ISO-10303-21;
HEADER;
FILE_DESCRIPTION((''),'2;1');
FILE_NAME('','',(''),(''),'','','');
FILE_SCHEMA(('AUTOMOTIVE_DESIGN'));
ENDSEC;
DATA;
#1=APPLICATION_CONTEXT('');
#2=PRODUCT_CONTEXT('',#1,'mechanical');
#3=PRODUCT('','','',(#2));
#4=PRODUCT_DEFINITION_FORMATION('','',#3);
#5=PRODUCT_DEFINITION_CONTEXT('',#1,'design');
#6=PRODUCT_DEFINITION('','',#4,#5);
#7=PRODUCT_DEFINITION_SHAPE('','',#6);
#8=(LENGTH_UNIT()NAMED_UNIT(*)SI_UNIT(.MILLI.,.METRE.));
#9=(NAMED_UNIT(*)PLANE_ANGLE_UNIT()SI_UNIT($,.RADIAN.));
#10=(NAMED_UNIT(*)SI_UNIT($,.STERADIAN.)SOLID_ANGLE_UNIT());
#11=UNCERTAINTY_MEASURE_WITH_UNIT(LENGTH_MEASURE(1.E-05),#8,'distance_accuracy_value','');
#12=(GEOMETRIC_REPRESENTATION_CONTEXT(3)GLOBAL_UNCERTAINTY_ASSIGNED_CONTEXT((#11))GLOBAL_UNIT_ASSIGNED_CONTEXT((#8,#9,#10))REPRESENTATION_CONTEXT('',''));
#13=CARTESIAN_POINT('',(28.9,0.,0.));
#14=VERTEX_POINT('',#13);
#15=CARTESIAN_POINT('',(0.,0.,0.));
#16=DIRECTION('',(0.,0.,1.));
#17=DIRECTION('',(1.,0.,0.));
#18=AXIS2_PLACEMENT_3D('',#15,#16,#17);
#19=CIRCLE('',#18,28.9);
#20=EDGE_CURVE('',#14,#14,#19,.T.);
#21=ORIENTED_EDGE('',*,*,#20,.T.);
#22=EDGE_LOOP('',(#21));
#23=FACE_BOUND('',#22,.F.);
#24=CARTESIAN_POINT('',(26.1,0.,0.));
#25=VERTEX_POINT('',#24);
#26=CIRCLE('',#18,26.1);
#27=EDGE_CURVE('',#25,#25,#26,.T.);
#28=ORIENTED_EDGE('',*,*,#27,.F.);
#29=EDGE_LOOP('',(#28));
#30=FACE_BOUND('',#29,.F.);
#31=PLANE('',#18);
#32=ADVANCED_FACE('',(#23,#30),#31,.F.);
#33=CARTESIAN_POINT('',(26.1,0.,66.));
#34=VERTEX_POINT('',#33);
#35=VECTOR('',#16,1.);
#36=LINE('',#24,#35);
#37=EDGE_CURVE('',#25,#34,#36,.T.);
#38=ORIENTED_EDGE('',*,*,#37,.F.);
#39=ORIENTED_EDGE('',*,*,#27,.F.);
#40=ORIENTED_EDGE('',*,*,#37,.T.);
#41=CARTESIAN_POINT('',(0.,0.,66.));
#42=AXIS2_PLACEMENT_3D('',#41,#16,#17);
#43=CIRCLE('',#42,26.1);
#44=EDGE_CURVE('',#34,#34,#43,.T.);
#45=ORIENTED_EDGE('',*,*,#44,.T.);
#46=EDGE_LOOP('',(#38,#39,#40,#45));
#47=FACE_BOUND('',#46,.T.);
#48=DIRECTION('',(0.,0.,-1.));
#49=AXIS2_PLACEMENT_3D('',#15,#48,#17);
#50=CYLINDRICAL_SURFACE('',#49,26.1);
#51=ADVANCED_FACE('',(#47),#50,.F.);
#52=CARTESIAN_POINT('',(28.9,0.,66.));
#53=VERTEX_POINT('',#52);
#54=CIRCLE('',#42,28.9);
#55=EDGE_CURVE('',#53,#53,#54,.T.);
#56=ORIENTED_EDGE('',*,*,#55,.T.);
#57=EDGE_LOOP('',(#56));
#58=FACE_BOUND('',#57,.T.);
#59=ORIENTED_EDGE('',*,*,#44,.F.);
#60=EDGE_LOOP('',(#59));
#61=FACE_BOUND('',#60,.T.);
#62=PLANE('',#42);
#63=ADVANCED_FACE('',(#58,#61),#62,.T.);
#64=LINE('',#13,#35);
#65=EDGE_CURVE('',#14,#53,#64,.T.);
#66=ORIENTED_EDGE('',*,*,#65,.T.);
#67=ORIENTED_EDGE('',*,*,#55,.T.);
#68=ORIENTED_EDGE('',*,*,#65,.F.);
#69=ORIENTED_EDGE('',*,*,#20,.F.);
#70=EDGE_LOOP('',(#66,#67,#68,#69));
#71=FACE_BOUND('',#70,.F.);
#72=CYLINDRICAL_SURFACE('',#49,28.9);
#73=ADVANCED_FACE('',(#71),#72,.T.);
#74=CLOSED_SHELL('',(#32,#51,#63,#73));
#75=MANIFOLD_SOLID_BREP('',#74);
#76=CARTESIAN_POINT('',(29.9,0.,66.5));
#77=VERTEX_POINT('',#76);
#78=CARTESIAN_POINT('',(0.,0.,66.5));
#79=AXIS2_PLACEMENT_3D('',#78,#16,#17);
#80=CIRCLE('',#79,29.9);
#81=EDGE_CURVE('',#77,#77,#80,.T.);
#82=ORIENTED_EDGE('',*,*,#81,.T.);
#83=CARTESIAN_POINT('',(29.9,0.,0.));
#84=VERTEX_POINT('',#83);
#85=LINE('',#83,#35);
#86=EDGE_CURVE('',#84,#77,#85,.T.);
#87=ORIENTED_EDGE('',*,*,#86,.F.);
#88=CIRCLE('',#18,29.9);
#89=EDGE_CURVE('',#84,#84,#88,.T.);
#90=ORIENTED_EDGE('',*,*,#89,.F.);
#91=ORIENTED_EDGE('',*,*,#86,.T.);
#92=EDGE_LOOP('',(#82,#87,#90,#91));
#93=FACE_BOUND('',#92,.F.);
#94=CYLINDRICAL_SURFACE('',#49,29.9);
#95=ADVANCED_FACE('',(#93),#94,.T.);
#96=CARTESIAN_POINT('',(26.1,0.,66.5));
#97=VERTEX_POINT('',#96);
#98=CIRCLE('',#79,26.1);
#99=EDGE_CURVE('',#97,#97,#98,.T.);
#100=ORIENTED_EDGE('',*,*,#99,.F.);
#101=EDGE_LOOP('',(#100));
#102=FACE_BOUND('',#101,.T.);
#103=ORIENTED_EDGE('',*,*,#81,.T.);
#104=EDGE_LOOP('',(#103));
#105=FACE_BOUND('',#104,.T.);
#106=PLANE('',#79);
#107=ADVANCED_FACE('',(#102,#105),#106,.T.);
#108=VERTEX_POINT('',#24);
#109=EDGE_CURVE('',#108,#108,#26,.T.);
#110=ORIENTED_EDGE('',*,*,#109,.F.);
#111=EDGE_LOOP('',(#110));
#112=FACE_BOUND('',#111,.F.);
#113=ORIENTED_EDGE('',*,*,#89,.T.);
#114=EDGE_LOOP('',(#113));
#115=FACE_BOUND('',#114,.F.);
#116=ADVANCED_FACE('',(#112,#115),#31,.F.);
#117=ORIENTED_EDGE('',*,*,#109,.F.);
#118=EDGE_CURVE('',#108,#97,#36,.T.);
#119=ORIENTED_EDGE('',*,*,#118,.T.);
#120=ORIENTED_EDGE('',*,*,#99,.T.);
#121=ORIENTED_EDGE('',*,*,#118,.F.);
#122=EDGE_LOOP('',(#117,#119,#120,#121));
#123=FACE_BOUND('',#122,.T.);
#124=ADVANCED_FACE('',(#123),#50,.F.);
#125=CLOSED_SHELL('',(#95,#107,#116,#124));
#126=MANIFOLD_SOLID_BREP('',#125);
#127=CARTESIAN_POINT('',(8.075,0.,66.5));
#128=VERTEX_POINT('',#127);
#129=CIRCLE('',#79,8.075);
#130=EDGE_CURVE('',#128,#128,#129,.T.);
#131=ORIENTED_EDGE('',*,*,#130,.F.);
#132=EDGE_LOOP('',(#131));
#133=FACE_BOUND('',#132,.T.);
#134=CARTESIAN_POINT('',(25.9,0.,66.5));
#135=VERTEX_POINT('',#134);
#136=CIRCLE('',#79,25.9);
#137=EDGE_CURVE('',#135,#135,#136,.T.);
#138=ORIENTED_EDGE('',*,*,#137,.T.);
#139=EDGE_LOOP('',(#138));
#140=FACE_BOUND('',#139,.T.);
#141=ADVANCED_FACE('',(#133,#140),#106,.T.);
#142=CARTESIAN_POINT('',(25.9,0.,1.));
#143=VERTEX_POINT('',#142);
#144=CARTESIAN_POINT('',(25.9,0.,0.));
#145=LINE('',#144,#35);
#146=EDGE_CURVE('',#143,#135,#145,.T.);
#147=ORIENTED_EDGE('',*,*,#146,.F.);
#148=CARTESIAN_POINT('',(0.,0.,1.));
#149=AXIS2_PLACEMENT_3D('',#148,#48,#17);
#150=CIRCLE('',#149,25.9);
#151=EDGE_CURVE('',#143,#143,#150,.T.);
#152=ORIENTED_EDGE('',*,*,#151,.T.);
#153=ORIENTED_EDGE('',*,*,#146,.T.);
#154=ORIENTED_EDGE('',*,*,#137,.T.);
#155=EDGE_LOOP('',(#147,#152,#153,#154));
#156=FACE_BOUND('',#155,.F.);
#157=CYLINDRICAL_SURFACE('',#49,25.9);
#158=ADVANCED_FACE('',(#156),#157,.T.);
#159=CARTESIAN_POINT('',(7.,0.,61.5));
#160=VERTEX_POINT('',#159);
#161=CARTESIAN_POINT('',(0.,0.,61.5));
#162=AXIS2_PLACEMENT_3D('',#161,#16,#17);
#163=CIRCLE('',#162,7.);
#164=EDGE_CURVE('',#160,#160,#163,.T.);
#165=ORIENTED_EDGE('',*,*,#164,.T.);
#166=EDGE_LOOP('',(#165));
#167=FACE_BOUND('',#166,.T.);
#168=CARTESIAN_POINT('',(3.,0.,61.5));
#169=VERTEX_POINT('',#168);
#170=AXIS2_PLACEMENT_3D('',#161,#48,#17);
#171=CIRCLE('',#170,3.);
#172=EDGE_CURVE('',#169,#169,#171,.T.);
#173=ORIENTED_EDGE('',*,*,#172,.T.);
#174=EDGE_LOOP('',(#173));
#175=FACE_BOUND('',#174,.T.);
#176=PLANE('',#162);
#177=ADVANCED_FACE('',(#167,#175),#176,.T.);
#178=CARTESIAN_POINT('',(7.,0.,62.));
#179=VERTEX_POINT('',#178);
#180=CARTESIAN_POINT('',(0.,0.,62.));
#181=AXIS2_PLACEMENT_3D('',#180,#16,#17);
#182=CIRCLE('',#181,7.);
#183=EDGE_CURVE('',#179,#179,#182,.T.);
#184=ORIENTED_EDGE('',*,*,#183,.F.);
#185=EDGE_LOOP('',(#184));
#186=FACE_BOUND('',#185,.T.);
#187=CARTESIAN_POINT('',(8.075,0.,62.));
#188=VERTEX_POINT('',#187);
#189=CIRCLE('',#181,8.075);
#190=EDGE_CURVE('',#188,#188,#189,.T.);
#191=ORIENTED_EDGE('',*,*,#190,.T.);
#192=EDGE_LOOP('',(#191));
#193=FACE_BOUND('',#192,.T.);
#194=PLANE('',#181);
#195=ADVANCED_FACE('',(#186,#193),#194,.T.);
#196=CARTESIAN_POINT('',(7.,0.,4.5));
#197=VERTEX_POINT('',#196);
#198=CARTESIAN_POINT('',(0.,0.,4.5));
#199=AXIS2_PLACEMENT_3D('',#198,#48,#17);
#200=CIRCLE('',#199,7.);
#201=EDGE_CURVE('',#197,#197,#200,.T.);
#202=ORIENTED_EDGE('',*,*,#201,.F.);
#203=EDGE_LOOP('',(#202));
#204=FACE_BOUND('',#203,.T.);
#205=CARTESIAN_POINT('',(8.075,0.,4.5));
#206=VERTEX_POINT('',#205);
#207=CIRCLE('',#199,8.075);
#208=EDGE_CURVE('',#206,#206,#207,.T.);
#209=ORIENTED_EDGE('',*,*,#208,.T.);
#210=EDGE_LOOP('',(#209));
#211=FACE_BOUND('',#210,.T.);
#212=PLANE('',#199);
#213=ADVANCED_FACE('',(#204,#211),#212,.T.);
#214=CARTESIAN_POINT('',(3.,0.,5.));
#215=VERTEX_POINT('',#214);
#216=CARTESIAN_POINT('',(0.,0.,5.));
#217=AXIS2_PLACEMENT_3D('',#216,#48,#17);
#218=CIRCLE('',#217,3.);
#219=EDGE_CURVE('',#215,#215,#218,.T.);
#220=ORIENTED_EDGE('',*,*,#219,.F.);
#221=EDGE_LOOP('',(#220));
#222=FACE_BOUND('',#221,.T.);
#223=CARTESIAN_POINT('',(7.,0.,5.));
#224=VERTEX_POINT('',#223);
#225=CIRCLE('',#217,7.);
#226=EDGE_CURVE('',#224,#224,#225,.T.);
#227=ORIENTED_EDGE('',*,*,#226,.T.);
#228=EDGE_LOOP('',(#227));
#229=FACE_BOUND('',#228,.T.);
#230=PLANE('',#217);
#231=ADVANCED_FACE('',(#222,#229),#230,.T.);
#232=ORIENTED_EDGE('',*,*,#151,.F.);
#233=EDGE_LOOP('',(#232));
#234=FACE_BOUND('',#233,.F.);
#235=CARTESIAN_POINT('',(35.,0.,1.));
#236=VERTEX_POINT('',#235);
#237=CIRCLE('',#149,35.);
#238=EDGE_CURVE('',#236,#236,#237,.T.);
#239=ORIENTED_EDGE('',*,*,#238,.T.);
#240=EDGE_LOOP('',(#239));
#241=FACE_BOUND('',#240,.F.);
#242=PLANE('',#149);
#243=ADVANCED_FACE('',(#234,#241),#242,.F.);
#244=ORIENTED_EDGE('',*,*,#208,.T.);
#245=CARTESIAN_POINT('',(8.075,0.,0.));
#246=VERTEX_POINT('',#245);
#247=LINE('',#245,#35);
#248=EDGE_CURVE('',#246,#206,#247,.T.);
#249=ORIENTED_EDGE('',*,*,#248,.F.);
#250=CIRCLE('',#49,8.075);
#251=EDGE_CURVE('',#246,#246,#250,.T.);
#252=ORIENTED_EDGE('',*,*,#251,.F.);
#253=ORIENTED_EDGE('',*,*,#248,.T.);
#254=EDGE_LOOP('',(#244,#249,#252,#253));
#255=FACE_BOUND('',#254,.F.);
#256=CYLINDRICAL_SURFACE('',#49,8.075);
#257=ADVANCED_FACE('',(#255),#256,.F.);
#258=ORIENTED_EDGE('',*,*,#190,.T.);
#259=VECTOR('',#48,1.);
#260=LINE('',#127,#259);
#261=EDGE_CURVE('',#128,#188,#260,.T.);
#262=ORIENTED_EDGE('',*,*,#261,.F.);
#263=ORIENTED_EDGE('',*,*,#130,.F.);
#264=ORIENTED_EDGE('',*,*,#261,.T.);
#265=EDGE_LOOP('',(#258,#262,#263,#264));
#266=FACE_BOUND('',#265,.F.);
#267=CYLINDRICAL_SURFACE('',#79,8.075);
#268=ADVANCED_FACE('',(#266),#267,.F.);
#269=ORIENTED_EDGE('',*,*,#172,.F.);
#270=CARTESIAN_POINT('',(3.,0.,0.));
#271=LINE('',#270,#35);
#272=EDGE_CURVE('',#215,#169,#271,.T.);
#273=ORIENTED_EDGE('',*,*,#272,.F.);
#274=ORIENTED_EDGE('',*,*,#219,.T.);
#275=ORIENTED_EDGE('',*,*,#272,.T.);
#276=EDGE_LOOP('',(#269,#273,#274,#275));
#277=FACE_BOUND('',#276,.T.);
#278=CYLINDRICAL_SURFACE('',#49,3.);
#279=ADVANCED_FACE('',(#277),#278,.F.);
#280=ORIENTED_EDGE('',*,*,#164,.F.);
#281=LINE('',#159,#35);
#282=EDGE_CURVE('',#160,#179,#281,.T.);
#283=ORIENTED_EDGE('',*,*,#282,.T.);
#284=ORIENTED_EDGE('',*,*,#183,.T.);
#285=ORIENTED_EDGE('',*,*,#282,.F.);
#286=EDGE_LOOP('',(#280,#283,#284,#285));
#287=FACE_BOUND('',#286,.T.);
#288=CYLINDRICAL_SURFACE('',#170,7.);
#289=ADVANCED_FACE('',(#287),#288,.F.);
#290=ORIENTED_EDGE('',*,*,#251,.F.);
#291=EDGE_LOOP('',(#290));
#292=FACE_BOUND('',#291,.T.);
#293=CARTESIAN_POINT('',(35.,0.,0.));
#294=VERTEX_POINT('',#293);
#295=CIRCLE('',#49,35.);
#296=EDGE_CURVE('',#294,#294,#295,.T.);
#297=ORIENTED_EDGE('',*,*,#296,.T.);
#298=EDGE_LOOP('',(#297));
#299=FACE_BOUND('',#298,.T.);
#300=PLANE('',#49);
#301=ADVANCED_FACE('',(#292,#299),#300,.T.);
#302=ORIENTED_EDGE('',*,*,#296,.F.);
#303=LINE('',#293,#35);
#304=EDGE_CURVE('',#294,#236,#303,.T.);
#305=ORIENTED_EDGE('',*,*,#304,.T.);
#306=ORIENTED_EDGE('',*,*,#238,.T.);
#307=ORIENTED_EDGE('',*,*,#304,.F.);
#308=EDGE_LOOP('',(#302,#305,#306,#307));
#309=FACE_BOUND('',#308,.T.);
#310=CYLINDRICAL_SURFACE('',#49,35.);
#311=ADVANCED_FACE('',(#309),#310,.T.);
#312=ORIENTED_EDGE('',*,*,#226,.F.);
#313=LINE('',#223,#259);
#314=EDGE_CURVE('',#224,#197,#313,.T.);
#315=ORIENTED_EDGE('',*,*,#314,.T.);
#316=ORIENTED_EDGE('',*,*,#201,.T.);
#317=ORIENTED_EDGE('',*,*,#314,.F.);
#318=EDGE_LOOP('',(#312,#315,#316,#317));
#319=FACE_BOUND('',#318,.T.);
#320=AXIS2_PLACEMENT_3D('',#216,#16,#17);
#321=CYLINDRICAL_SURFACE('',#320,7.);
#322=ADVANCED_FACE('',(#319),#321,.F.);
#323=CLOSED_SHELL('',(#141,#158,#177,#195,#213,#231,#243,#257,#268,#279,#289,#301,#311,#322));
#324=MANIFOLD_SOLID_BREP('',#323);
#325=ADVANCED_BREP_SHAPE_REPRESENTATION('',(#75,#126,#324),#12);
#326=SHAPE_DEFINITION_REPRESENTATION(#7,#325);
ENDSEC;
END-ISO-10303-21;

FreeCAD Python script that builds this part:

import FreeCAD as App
import Part
import Sketcher
from FreeCAD import Vector
Q = App.Units.Quantity

doc = App.newDocument("Part")
body = doc.addObject("PartDesign::Body", "Body")

sketch1 = doc.addObject("Sketcher::SketchObject", "Sketch")
body.addObject(sketch1)
sketch1.AttachmentSupport = (doc.XY_Plane, [""])
sketch1.MapMode = "FlatFace"
sketch1.addGeometry([
    Part.Circle(Vector(0, 0, 0), Vector(0, 0, 1), 25.9),
    Part.Circle(Vector(0, 0, 0), Vector(0, 0, 1), 3),
], False)
sketch1.addConstraint([
    Sketcher.Constraint("Coincident", 0, 3, -1, 1),
    Sketcher.Constraint("Coincident", 1, 3, -1, 1),
    Sketcher.Constraint("Diameter", 1, Q("6 mm")),
    Sketcher.Constraint("Diameter", 0, Q("51.8 mm")),
])
pad1 = doc.addObject("PartDesign::Pad", "Pad")
body.addObject(pad1)
pad1.Profile = sketch1
pad1.Length = 66.5

sketch2 = doc.addObject("Sketcher::SketchObject", "Sketch001")
body.addObject(sketch2)
sketch2.AttachmentSupport = (doc.XY_Plane, [""])
sketch2.MapMode = "FlatFace"
sketch2.addGeometry([
    Part.Circle(Vector(0, 0, 0), Vector(0, 0, 1), 35),
    Part.Circle(Vector(0, 0, 0), Vector(0, 0, 1), 3),
], False)
sketch2.addConstraint([
    Sketcher.Constraint("Coincident", 0, 3, -1, 1),
    Sketcher.Constraint("Coincident", 1, 3, -1, 1),
    Sketcher.Constraint("Diameter", 0, Q("70 mm")),
    Sketcher.Constraint("Diameter", 1, Q("6 mm")),
])
pad2 = doc.addObject("PartDesign::Pad", "Pad001")
body.addObject(pad2)
pad2.Profile = sketch2
pad2.Length = 1

sketch3 = doc.addObject("Sketcher::SketchObject", "Sketch002")
body.addObject(sketch3)
sketch3.AttachmentSupport = (doc.XY_Plane, [""])
sketch3.MapMode = "FlatFace"
sketch3.addGeometry(Part.Circle(Vector(0, 0, 0), Vector(0, 0, 1), 8), False)
sketch3.addConstraint([
    Sketcher.Constraint("Coincident", 0, 3, -1, 1),
    Sketcher.Constraint("Diameter", 0, Q("16.15 mm")),
])
pocket1 = doc.addObject("PartDesign::Pocket", "Pocket")
body.addObject(pocket1)
pocket1.Profile = sketch3
pocket1.Length = 5
pocket1.Reversed = True

sketch4 = doc.addObject("Sketcher::SketchObject", "Sketch003")
body.addObject(sketch4)
sketch4.AttachmentSupport = (doc.XY_Plane, [""])
sketch4.MapMode = "FlatFace"
sketch4.AttachmentOffset = App.Placement(Vector(0, 0, 66.5), App.Rotation())
sketch4.addGeometry(Part.Circle(Vector(0, 0, 0), Vector(0, 0, 1), 8), False)
sketch4.addConstraint([
    Sketcher.Constraint("Coincident", 0, 3, -1, 1),
    Sketcher.Constraint("Diameter", 0, Q("16.15 mm")),
])
pocket2 = doc.addObject("PartDesign::Pocket", "Pocket001")
body.addObject(pocket2)
pocket2.Profile = sketch4
pocket2.Length = 5

sketch5 = doc.addObject("Sketcher::SketchObject", "Sketch004")
body.addObject(sketch5)
sketch5.AttachmentSupport = (doc.XY_Plane, [""])
sketch5.MapMode = "FlatFace"
sketch5.AttachmentOffset = App.Placement(Vector(0, 0, 61.5), App.Rotation())
sketch5.addGeometry([
    Part.Circle(Vector(0, 0, 0), Vector(0, 0, 1), 8),
    Part.Circle(Vector(0, 0, 0), Vector(0, 0, 1), 7),
], False)
sketch5.addConstraint([
    Sketcher.Constraint("Coincident", 0, 3, -1, 1),
    Sketcher.Constraint("Coincident", 1, 3, -1, 1),
    Sketcher.Constraint("Diameter", 1, Q("14 mm")),
    Sketcher.Constraint("Diameter", 0, Q("16.15 mm")),
])
pad3 = doc.addObject("PartDesign::Pad", "Pad002")
body.addObject(pad3)
pad3.Profile = sketch5
pad3.Length = 0.5

sketch6 = doc.addObject("Sketcher::SketchObject", "Sketch005")
body.addObject(sketch6)
sketch6.AttachmentSupport = (doc.XY_Plane, [""])
sketch6.MapMode = "FlatFace"
sketch6.AttachmentOffset = App.Placement(Vector(0, 0, 5), App.Rotation())
sketch6.addGeometry([
    Part.Circle(Vector(0, 0, 0), Vector(0, 0, 1), 8),
    Part.Circle(Vector(0, 0, 0), Vector(0, 0, 1), 7),
], False)
sketch6.addConstraint([
    Sketcher.Constraint("Coincident", 0, 3, -1, 1),
    Sketcher.Constraint("Coincident", 1, 3, -1, 1),
    Sketcher.Constraint("Diameter", 1, Q("14 mm")),
    Sketcher.Constraint("Diameter", 0, Q("16.15 mm")),
])
pad4 = doc.addObject("PartDesign::Pad", "Pad003")
body.addObject(pad4)
pad4.Profile = sketch6
pad4.Length = 0.5
pad4.Reversed = True
body2 = doc.addObject("PartDesign::Body", "Body001")

sketch7 = doc.addObject("Sketcher::SketchObject", "Sketch006")
body2.addObject(sketch7)
sketch7.AttachmentSupport = (doc.getObject("XY_Plane001"), [""])
sketch7.MapMode = "FlatFace"
sketch7.addGeometry([
    Part.Circle(Vector(0, 0, 0), Vector(0, 0, 1), 30),
    Part.Circle(Vector(0, 0, 0), Vector(0, 0, 1), 26),
], False)
sketch7.addConstraint([
    Sketcher.Constraint("Coincident", 0, 3, -1, 1),
    Sketcher.Constraint("Coincident", 1, 3, -1, 1),
    Sketcher.Constraint("Diameter", 0, Q("59.8 mm")),
    Sketcher.Constraint("Diameter", 1, Q("52.2 mm")),
])
pad5 = doc.addObject("PartDesign::Pad", "Pad004")
body2.addObject(pad5)
pad5.Profile = sketch7
pad5.Length = 66.5
body3 = doc.addObject("PartDesign::Body", "Body002")

sketch8 = doc.addObject("Sketcher::SketchObject", "Sketch007")
body3.addObject(sketch8)
sketch8.AttachmentSupport = (doc.getObject("XY_Plane002"), [""])
sketch8.MapMode = "FlatFace"
sketch8.addGeometry([
    Part.Circle(Vector(0, 0, 0), Vector(0, 0, 1), 29),
    Part.Circle(Vector(0, 0, 0), Vector(0, 0, 1), 26),
], False)
sketch8.addConstraint([
    Sketcher.Constraint("Coincident", 0, 3, -1, 1),
    Sketcher.Constraint("Coincident", 1, 3, -1, 1),
    Sketcher.Constraint("Diameter", 0, Q("57.8 mm")),
    Sketcher.Constraint("Diameter", 1, Q("52.2 mm")),
])
pad6 = doc.addObject("PartDesign::Pad", "Pad005")
body3.addObject(pad6)
pad6.Profile = sketch8
pad6.Length = 66

doc.recompute()
